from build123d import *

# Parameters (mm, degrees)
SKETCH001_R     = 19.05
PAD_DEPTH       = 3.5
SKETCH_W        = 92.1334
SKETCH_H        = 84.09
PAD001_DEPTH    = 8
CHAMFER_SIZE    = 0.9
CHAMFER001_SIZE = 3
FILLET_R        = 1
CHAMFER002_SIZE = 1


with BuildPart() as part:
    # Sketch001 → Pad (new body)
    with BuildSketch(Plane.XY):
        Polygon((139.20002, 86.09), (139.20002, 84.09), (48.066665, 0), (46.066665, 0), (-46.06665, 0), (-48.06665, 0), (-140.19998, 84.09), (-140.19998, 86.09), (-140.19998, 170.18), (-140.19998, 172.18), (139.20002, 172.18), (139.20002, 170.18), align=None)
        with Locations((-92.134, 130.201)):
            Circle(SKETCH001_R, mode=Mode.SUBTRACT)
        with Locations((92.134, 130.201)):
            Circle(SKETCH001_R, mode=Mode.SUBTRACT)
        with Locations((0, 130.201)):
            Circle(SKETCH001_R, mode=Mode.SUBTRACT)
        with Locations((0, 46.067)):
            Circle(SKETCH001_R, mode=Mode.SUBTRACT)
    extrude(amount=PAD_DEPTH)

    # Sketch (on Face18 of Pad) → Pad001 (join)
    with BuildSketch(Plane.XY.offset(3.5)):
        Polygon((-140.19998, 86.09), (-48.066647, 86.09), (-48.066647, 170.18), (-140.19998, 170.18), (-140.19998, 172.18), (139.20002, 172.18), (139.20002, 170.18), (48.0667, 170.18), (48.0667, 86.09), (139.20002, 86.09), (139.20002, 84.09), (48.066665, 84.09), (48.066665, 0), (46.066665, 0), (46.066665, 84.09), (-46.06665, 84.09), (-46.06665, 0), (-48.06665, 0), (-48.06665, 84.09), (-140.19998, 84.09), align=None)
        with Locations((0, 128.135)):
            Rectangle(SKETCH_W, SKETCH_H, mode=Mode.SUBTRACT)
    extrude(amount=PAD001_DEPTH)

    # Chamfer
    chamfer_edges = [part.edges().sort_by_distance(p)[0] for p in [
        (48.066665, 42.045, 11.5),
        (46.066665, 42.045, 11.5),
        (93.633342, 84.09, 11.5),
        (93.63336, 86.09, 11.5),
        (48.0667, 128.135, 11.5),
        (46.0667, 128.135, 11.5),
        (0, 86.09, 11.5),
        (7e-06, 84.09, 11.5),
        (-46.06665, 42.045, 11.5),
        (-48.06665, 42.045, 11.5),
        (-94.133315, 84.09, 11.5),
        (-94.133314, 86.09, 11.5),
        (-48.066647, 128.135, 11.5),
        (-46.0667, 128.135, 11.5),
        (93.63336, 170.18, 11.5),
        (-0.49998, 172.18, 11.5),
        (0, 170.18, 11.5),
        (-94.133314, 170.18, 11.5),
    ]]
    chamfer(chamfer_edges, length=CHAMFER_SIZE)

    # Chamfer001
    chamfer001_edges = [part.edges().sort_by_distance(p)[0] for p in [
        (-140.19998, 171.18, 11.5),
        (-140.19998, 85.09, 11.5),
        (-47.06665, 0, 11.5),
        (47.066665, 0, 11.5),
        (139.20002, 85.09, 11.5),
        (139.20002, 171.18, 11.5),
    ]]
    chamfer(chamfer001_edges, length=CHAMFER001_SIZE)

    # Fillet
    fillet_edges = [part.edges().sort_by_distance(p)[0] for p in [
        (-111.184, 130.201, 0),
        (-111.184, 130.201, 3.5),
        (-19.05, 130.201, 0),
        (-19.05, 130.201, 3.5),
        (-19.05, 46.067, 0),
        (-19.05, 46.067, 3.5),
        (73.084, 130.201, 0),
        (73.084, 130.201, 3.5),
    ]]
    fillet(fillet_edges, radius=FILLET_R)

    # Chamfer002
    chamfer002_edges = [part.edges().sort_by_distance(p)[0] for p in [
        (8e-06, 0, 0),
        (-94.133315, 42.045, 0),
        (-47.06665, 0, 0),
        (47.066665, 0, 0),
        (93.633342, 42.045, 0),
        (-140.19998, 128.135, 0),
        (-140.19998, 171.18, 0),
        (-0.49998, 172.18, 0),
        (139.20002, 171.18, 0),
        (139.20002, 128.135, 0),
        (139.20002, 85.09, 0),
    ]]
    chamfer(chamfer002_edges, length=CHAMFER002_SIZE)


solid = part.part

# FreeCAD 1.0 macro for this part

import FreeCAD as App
import Part
import Sketcher


def edges_at(feature, points):
    """Names of the edges that pass closest to the given points."""
    edges = feature.Shape.Edges
    near = lambda p: min(range(len(edges)), key=lambda i: edges[i].distToShape(Part.Vertex(*p))[0])
    return sorted({f"Edge{near(p) + 1}" for p in points})


def add_polygon(sketch, points):
    """Adds a closed chain of lines whose ends are joined by coincident constraints."""
    first, n = sketch.GeometryCount, len(points)
    for a, b in zip(points, points[1:] + points[:1]):
        sketch.addGeometry(Part.LineSegment(App.Vector(*a, 0), App.Vector(*b, 0)), False)
    for i in range(n):
        sketch.addConstraint(Sketcher.Constraint("Coincident", first + i, 2, first + (i + 1) % n, 1))

doc = App.newDocument("Part")
body = doc.addObject("PartDesign::Body", "Body")

sketch1 = doc.addObject("Sketcher::SketchObject", "Sketch")
body.addObject(sketch1)
sketch1.AttachmentSupport = (doc.XY_Plane, [""])
sketch1.MapMode = "FlatFace"
add_polygon(sketch1, [(139, 84), (139, 172), (-140, 172), (-140, 84), (-48, 0), (48, 0)])
sketch1.addGeometry(Part.Circle(App.Vector(0, 46, 0), App.Vector(0, 0, 1), 19), False)
sketch1.addGeometry(Part.Circle(App.Vector(92, 130, 0), App.Vector(0, 0, 1), 19), False)
sketch1.addGeometry(Part.Circle(App.Vector(0, 130, 0), App.Vector(0, 0, 1), 19), False)
sketch1.addGeometry(Part.Circle(App.Vector(-92, 130, 0), App.Vector(0, 0, 1), 19), False)
sketch1.addConstraint(Sketcher.Constraint("Vertical", 0))
sketch1.addConstraint(Sketcher.Constraint("Horizontal", 1))
sketch1.addConstraint(Sketcher.Constraint("Vertical", 2))
sketch1.addConstraint(Sketcher.Constraint("Horizontal", 4))
sketch1.addConstraint(Sketcher.Constraint("Equal", 6, 7))
sketch1.addConstraint(Sketcher.Constraint("Equal", 7, 8))
sketch1.addConstraint(Sketcher.Constraint("Equal", 8, 9))
sketch1.addConstraint(Sketcher.Constraint("Symmetric", 7, 3, 9, 3, -2))
sketch1.addConstraint(Sketcher.Constraint("PointOnObject", 6, 3, -2))
sketch1.addConstraint(Sketcher.Constraint("PointOnObject", 8, 3, -2))
sketch1.addConstraint(Sketcher.Constraint("PointOnObject", 3, 2, -1))
sketch1.addConstraint(Sketcher.Constraint("Horizontal", 7, 3, 8, 3))
sketch1.addConstraint(Sketcher.Constraint("Horizontal", 2, 2, 5, 2))
sketch1.addConstraint(Sketcher.Constraint("Diameter", 6, 38.1))
sketch1.addConstraint(Sketcher.Constraint("DistanceX", 1, 2, 1, 1, 279.4))
sketch1.addConstraint(Sketcher.Constraint("DistanceY", 0, 1, 0, 2, 88.09))
sketch1.addConstraint(Sketcher.Constraint("DistanceY", -1, 1, 0, 2, 172.18))
sketch1.addConstraint(Sketcher.Constraint("DistanceY", -1, 1, 6, 3, 46.067))
sketch1.addConstraint(Sketcher.Constraint("DistanceX", -1, 1, 7, 3, 92.134))
sketch1.addConstraint(Sketcher.Constraint("DistanceY", -1, 1, 7, 3, 130.201))
sketch1.addConstraint(Sketcher.Constraint("Distance", 3, 124.738441))
sketch1.addConstraint(Sketcher.Constraint("Distance", 5, 124.001679))
sketch1.addConstraint(Sketcher.Constraint("DistanceX", -1, 1, 0, 2, 139.20002))
pad1 = doc.addObject("PartDesign::Pad", "Pad")
body.addObject(pad1)
pad1.Profile = sketch1
pad1.Length = 3.5

sketch2 = doc.addObject("Sketcher::SketchObject", "Sketch001")
body.addObject(sketch2)
sketch2.AttachmentSupport = (doc.XY_Plane, [""])
sketch2.MapMode = "FlatFace"
sketch2.AttachmentOffset = App.Placement(App.Vector(0, 0, 3.5), App.Rotation())
add_polygon(sketch2, [(-48.1, 86.1), (-140.2, 86.1), (-140.2, 84.1), (-48.1, 84.1), (-48.1, 0), (-46.1, 0), (-46.1, 84.1), (46.1, 84.1), (46.1, 0), (48.1, 0), (48.1, 84.1), (139.2, 84.1), (139.2, 86.1), (48.1, 86.1), (48.1, 170.2), (139.2, 170.2), (139.2, 172.2), (-140.2, 172.2), (-140.2, 170.2), (-48.1, 170.2)])
add_polygon(sketch2, [(-46.1, 86.1), (-46.1, 170.2), (46.1, 170.2), (46.1, 86.1)])
sketch2.addConstraint(Sketcher.Constraint("Horizontal", 0))
sketch2.addConstraint(Sketcher.Constraint("Vertical", 1))
sketch2.addConstraint(Sketcher.Constraint("Horizontal", 2))
sketch2.addConstraint(Sketcher.Constraint("Vertical", 3))
sketch2.addConstraint(Sketcher.Constraint("Horizontal", 4))
sketch2.addConstraint(Sketcher.Constraint("Vertical", 5))
sketch2.addConstraint(Sketcher.Constraint("Horizontal", 6))
sketch2.addConstraint(Sketcher.Constraint("Vertical", 7))
sketch2.addConstraint(Sketcher.Constraint("Horizontal", 8))
sketch2.addConstraint(Sketcher.Constraint("Vertical", 9))
sketch2.addConstraint(Sketcher.Constraint("Horizontal", 10))
sketch2.addConstraint(Sketcher.Constraint("Vertical", 11))
sketch2.addConstraint(Sketcher.Constraint("Horizontal", 12))
sketch2.addConstraint(Sketcher.Constraint("Vertical", 13))
sketch2.addConstraint(Sketcher.Constraint("Horizontal", 14))
sketch2.addConstraint(Sketcher.Constraint("Vertical", 15))
sketch2.addConstraint(Sketcher.Constraint("Horizontal", 16))
sketch2.addConstraint(Sketcher.Constraint("Vertical", 17))
sketch2.addConstraint(Sketcher.Constraint("Horizontal", 18))
sketch2.addConstraint(Sketcher.Constraint("Vertical", 19))
sketch2.addConstraint(Sketcher.Constraint("Vertical", 20))
sketch2.addConstraint(Sketcher.Constraint("Horizontal", 21))
sketch2.addConstraint(Sketcher.Constraint("Vertical", 22))
sketch2.addConstraint(Sketcher.Constraint("Horizontal", 23))
sketch2.addConstraint(Sketcher.Constraint("PointOnObject", 3, 2, -1))
sketch2.addConstraint(Sketcher.Constraint("PointOnObject", 7, 2, -1))
sketch2.addConstraint(Sketcher.Constraint("Horizontal", 2, 2, 5, 2))
sketch2.addConstraint(Sketcher.Constraint("Horizontal", 6, 2, 9, 2))
sketch2.addConstraint(Sketcher.Constraint("Horizontal", 0, 2, 11, 2))
sketch2.addConstraint(Sketcher.Constraint("Horizontal", 14, 2, 17, 2))
sketch2.addConstraint(Sketcher.Constraint("Horizontal", 18, 2, 20, 2))
sketch2.addConstraint(Sketcher.Constraint("Horizontal", 19, 2, 22, 2))
sketch2.addConstraint(Sketcher.Constraint("Vertical", 11, 2, 14, 2))
sketch2.addConstraint(Sketcher.Constraint("Vertical", 1, 2, 16, 2))
sketch2.addConstraint(Sketcher.Constraint("Equal", 4, 8))
sketch2.addConstraint(Sketcher.Constraint("Equal", 8, 1))
sketch2.addConstraint(Sketcher.Constraint("Equal", 9, 13))
sketch2.addConstraint(Sketcher.Constraint("Equal", 11, 15))
sketch2.addConstraint(Sketcher.Constraint("DistanceX", 4, 1, 4, 2, 2.0))
sketch2.addConstraint(Sketcher.Constraint("DistanceX", 16, 2, 16, 1, 279.4))
sketch2.addConstraint(Sketcher.Constraint("DistanceX", 21, 2, 13, 2, 2.0))
sketch2.addConstraint(Sketcher.Constraint("DistanceY", 3, 2, 3, 1, 84.09))
sketch2.addConstraint(Sketcher.Constraint("DistanceX", 21, 1, 21, 2, 92.1334))
sketch2.addConstraint(Sketcher.Constraint("DistanceX", 2, 1, 2, 2, 92.13333))
sketch2.addConstraint(Sketcher.Constraint("DistanceX", 12, 2, 12, 1, 91.13332))
sketch2.addConstraint(Sketcher.Constraint("DistanceX", -1, 1, 12, 2, 48.0667))
sketch2.addConstraint(Sketcher.Constraint("DistanceX", 0, 2, 0, 1, 92.133333))
sketch2.addConstraint(Sketcher.Constraint("DistanceX", 6, 1, 6, 2, 92.133315))
pad2 = doc.addObject("PartDesign::Pad", "Pad001")
body.addObject(pad2)
pad2.Profile = sketch2
pad2.Length = 8
doc.recompute()

chamfer = doc.addObject("PartDesign::Chamfer", "Chamfer")
body.addObject(chamfer)
chamfer.Base = (pad2, edges_at(pad2, [
    (48.067, 42.045, 11.5),
    (46.067, 42.045, 11.5),
    (93.633, 84.09, 11.5),
    (93.633, 86.09, 11.5),
    (48.067, 128.135, 11.5),
    (46.067, 128.135, 11.5),
    (0, 86.09, 11.5),
    (0, 84.09, 11.5),
    (-46.067, 42.045, 11.5),
    (-48.067, 42.045, 11.5),
    (-94.133, 84.09, 11.5),
    (-94.133, 86.09, 11.5),
    (-48.067, 128.135, 11.5),
    (-46.067, 128.135, 11.5),
    (93.633, 170.18, 11.5),
    (-0.5, 172.18, 11.5),
    (0, 170.18, 11.5),
    (-94.133, 170.18, 11.5),
]))
chamfer.Size = 0.9
doc.recompute()

chamfer2 = doc.addObject("PartDesign::Chamfer", "Chamfer001")
body.addObject(chamfer2)
chamfer2.Base = (chamfer, edges_at(chamfer, [
    (-140.2, 171.18, 11.5),
    (-140.2, 85.09, 11.5),
    (-47.067, 0, 11.5),
    (47.067, 0, 11.5),
    (139.2, 85.09, 11.5),
    (139.2, 171.18, 11.5),
]))
chamfer2.Size = 3
doc.recompute()

fillet = doc.addObject("PartDesign::Fillet", "Fillet")
body.addObject(fillet)
fillet.Base = (chamfer2, edges_at(chamfer2, [
    (-111.184, 130.201, 0),
    (-111.184, 130.201, 3.5),
    (-19.05, 130.201, 0),
    (-19.05, 130.201, 3.5),
    (-19.05, 46.067, 0),
    (-19.05, 46.067, 3.5),
    (73.084, 130.201, 0),
    (73.084, 130.201, 3.5),
]))
fillet.Radius = 1
doc.recompute()

chamfer3 = doc.addObject("PartDesign::Chamfer", "Chamfer002")
body.addObject(chamfer3)
chamfer3.Base = (fillet, edges_at(fillet, [
    (0, 0, 0),
    (-94.133, 42.045, 0),
    (0, 0, 0),
    (0, 0, 0),
    (93.633, 42.045, 0),
    (-140.2, 128.135, 0),
    (-140.2, 128.135, 0),
    (-0.5, 172.18, 0),
    (139.2, 128.135, 0),
    (139.2, 128.135, 0),
    (139.2, 128.135, 0),
]))
chamfer3.Size = 1

doc.recompute()
